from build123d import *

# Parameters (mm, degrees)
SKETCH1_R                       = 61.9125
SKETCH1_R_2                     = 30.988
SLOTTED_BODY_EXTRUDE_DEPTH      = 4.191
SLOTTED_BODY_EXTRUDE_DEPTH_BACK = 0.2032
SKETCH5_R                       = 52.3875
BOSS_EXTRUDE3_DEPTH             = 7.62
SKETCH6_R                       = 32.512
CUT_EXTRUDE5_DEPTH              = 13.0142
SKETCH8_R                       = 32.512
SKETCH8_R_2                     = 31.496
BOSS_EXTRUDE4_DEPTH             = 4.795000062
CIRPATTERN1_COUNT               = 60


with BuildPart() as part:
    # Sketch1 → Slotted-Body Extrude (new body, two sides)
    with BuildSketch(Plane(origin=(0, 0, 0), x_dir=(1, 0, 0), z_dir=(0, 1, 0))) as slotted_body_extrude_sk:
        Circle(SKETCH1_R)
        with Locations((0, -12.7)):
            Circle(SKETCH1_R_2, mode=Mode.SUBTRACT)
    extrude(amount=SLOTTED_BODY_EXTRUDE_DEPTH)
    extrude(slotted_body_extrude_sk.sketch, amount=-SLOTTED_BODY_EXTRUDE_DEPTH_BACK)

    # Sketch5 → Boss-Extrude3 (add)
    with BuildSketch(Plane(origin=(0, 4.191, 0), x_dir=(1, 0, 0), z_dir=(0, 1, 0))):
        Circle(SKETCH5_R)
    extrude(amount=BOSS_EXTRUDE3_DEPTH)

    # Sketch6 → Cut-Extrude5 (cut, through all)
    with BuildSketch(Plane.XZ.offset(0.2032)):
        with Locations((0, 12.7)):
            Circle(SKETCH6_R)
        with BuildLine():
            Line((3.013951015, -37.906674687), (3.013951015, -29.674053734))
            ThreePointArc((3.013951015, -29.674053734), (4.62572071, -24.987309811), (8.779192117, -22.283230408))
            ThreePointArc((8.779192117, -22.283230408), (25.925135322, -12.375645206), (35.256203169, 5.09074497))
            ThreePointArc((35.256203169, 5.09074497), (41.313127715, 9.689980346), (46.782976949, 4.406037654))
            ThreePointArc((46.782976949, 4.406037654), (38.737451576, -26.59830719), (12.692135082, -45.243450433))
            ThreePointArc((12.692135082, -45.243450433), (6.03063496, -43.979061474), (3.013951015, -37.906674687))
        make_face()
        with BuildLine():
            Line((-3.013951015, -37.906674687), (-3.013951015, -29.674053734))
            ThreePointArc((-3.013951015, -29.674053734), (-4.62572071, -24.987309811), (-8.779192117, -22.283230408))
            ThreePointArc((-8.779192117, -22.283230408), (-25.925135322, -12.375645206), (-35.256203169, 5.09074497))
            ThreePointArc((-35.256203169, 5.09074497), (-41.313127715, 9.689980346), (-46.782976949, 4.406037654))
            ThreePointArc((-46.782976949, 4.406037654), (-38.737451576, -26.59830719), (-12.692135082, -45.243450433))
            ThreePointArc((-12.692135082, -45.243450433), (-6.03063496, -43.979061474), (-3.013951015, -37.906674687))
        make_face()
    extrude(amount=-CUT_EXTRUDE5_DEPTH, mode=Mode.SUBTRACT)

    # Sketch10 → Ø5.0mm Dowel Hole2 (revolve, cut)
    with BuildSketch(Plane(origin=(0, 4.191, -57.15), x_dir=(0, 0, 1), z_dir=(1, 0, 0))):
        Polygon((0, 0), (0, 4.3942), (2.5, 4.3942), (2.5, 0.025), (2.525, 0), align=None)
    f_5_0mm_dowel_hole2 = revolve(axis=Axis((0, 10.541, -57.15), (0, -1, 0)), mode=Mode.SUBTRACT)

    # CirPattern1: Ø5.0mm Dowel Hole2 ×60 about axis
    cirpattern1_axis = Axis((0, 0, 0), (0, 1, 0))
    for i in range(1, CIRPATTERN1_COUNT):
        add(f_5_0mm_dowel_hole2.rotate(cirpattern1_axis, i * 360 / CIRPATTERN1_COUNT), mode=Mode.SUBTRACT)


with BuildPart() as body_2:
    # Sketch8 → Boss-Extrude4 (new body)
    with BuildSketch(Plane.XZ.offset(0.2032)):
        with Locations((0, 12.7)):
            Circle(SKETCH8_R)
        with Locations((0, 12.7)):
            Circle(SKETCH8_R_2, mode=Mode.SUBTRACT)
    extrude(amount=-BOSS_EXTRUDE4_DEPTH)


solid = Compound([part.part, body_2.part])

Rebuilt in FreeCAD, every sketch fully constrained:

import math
import FreeCAD as App
import Part
import Sketcher

V = App.Vector
Q = App.Units.Quantity

doc = App.newDocument("Part")
body = doc.addObject("PartDesign::Body", "Body")

sketch1 = doc.addObject("Sketcher::SketchObject", "Sketch")
body.addObject(sketch1)
sketch1.AttachmentSupport = (doc.XZ_Plane, [""])
sketch1.MapMode = "FlatFace"
sketch1.addGeometry(Part.Circle(V(0, 0, 0), V(0, 0, 1), 62), False)
sketch1.addGeometry(Part.Circle(V(0, 13, 0), V(0, 0, 1), 31), False)
sketch1.addConstraint(Sketcher.Constraint("Coincident", 0, 3, -1, 1))
sketch1.addConstraint(Sketcher.Constraint("PointOnObject", 1, 3, -2))
sketch1.addConstraint(Sketcher.Constraint("Diameter", 1, Q("2.44 in")))
sketch1.addConstraint(Sketcher.Constraint("Diameter", 0, Q("4.875 in")))
sketch1.addConstraint(Sketcher.Constraint("DistanceY", -1, 1, 1, 3, Q("0.5 in")))
pad1 = doc.addObject("PartDesign::Pad", "Pad")
body.addObject(pad1)
pad1.Profile = sketch1
pad1.Type = "TwoLengths"
pad1.Length = Q("0.165 in")
pad1.Length2 = Q("0.008 in")
pad1.Reversed = True

sketch2 = doc.addObject("Sketcher::SketchObject", "Sketch001")
body.addObject(sketch2)
sketch2.AttachmentSupport = (doc.XZ_Plane, [""])
sketch2.MapMode = "FlatFace"
sketch2.AttachmentOffset = App.Placement(V(0, 0, -0.165 * 25.4), App.Rotation())
sketch2.addGeometry(Part.Circle(V(0, 0, 0), V(0, 0, 1), 52), False)
sketch2.addConstraint(Sketcher.Constraint("Coincident", 0, 3, -1, 1))
sketch2.addConstraint(Sketcher.Constraint("Diameter", 0, Q("4.125 in")))
pad2 = doc.addObject("PartDesign::Pad", "Pad001")
body.addObject(pad2)
pad2.Profile = sketch2
pad2.Length = Q("0.3 in")
pad2.Reversed = True

sketch3 = doc.addObject("Sketcher::SketchObject", "Sketch002")
body.addObject(sketch3)
sketch3.AttachmentSupport = (doc.XZ_Plane, [""])
sketch3.MapMode = "FlatFace"
sketch3.AttachmentOffset = App.Placement(V(0, 0, 0.008 * 25.4), App.Rotation())
sketch3.addGeometry(Part.Circle(V(0, 13, 0), V(0, 0, 1), 33), False)
sketch3.addGeometry(Part.LineSegment(V(3, -30, 0), V(3, -38, 0)), False)
sketch3.addGeometry(Part.ArcOfCircle(Part.Circle(V(11, -38, 0), V(0, 0, 1), 8), math.radians(-180), math.radians(-74)), False)
sketch3.addGeometry(Part.ArcOfCircle(Part.Circle(V(0, 0, 0), V(0, 0, 1), 47), math.radians(-74), math.radians(5)), False)
sketch3.addGeometry(Part.ArcOfCircle(Part.Circle(V(41, 4, 0), V(0, 0, 1), 6), math.radians(5), math.radians(168)), False)
sketch3.addGeometry(Part.ArcOfCircle(Part.Circle(V(0, 13, 0), V(0, 0, 1), 36), math.radians(-76), math.radians(-12)), False)
sketch3.addGeometry(Part.ArcOfCircle(Part.Circle(V(11, -30, 0), V(0, 0, 1), 8), math.radians(104), math.radians(180)), False)
sketch3.addGeometry(Part.LineSegment(V(-3, -38, 0), V(-3, -30, 0)), False)
sketch3.addGeometry(Part.ArcOfCircle(Part.Circle(V(-11, -30, 0), V(0, 0, 1), 8), math.radians(0), math.radians(76)), False)
sketch3.addGeometry(Part.ArcOfCircle(Part.Circle(V(0, 13, 0), V(0, 0, 1), 36), math.radians(-168), math.radians(-104)), False)
sketch3.addGeometry(Part.ArcOfCircle(Part.Circle(V(-41, 4, 0), V(0, 0, 1), 6), math.radians(12), math.radians(175)), False)
sketch3.addGeometry(Part.ArcOfCircle(Part.Circle(V(0, 0, 0), V(0, 0, 1), 47), math.radians(175), math.radians(254)), False)
sketch3.addGeometry(Part.ArcOfCircle(Part.Circle(V(-11, -38, 0), V(0, 0, 1), 8), math.radians(-106), math.radians(0)), False)
sketch3.addConstraint(Sketcher.Constraint("Tangent", 1, 2, 2, 1))
sketch3.addConstraint(Sketcher.Constraint("Tangent", 2, 2, 3, 1))
sketch3.addConstraint(Sketcher.Constraint("Tangent", 3, 2, 4, 1))
sketch3.addConstraint(Sketcher.Constraint("Tangent", 4, 2, 5, 2))
sketch3.addConstraint(Sketcher.Constraint("Tangent", 5, 1, 6, 1))
sketch3.addConstraint(Sketcher.Constraint("Tangent", 6, 2, 1, 1))
sketch3.addConstraint(Sketcher.Constraint("Tangent", 7, 2, 8, 1))
sketch3.addConstraint(Sketcher.Constraint("Tangent", 8, 2, 9, 2))
sketch3.addConstraint(Sketcher.Constraint("Tangent", 9, 1, 10, 1))
sketch3.addConstraint(Sketcher.Constraint("Tangent", 10, 2, 11, 1))
sketch3.addConstraint(Sketcher.Constraint("Tangent", 11, 2, 12, 1))
sketch3.addConstraint(Sketcher.Constraint("Tangent", 12, 2, 7, 1))
sketch3.addConstraint(Sketcher.Constraint("Vertical", 1))
sketch3.addConstraint(Sketcher.Constraint("Vertical", 7))
sketch3.addConstraint(Sketcher.Constraint("Coincident", 3, 3, -1, 1))
sketch3.addConstraint(Sketcher.Constraint("Coincident", 11, 3, -1, 1))
sketch3.addConstraint(Sketcher.Constraint("Coincident", 5, 3, 0, 3))
sketch3.addConstraint(Sketcher.Constraint("Coincident", 9, 3, 0, 3))
sketch3.addConstraint(Sketcher.Constraint("Equal", 2, 6))
sketch3.addConstraint(Sketcher.Constraint("Equal", 6, 8))
sketch3.addConstraint(Sketcher.Constraint("Equal", 5, 9))
sketch3.addConstraint(Sketcher.Constraint("Equal", 4, 10))
sketch3.addConstraint(Sketcher.Constraint("Equal", 3, 11))
sketch3.addConstraint(Sketcher.Constraint("Equal", 8, 12))
sketch3.addConstraint(Sketcher.Constraint("Symmetric", 6, 3, 8, 3, -2))
sketch3.addConstraint(Sketcher.Constraint("Radius", 2, Q("0.3 in")))
sketch3.addConstraint(Sketcher.Constraint("Diameter", 0, Q("2.56 in")))
sketch3.addConstraint(Sketcher.Constraint("Radius", 3, Q("1.85 in")))
sketch3.addConstraint(Sketcher.Constraint("Radius", 4, Q("0.23 in")))
sketch3.addConstraint(Sketcher.Constraint("Radius", 5, Q("1.42 in")))
sketch3.addConstraint(Sketcher.Constraint("DistanceY", -1, 1, 0, 3, Q("0.5 in")))
sketch3.addConstraint(Sketcher.Constraint("DistanceY", 1, 2, 1, 1, 8.232621))
pocket1 = doc.addObject("PartDesign::Pocket", "Pocket")
body.addObject(pocket1)
pocket1.Profile = sketch3
pocket1.Type = "ThroughAll"

sketch4 = doc.addObject("Sketcher::SketchObject", "Sketch003")
body.addObject(sketch4)
sketch4.AttachmentSupport = (doc.YZ_Plane, [""])
sketch4.MapMode = "FlatFace"
sketch4.addGeometry(Part.LineSegment(V(-0.203, -57.15, 0), V(4.191, -57.15, 0)), False)
sketch4.addGeometry(Part.LineSegment(V(4.191, -57.15, 0), V(4.191, -54.625, 0)), False)
sketch4.addGeometry(Part.LineSegment(V(4.191, -54.625, 0), V(4.166, -54.65, 0)), False)
sketch4.addGeometry(Part.LineSegment(V(4.166, -54.65, 0), V(-0.203, -54.65, 0)), False)
sketch4.addGeometry(Part.LineSegment(V(-0.203, -54.65, 0), V(-0.203, -57.15, 0)), False)
sketch4.addGeometry(Part.LineSegment(V(4.191, -57.15, 0), V(-0.203, -57.15, 0)), True)
sketch4.addConstraint(Sketcher.Constraint("Coincident", 0, 2, 1, 1))
sketch4.addConstraint(Sketcher.Constraint("Coincident", 1, 2, 2, 1))
sketch4.addConstraint(Sketcher.Constraint("Coincident", 2, 2, 3, 1))
sketch4.addConstraint(Sketcher.Constraint("Coincident", 3, 2, 4, 1))
sketch4.addConstraint(Sketcher.Constraint("Coincident", 4, 2, 0, 1))
sketch4.addConstraint(Sketcher.Constraint("Horizontal", 0))
sketch4.addConstraint(Sketcher.Constraint("Vertical", 1))
sketch4.addConstraint(Sketcher.Constraint("Horizontal", 3))
sketch4.addConstraint(Sketcher.Constraint("Vertical", 4))
sketch4.addConstraint(Sketcher.Constraint("Horizontal", 5))
sketch4.addConstraint(Sketcher.Constraint("Coincident", 5, 1, 0, 2))
sketch4.addConstraint(Sketcher.Constraint("Vertical", 3, 2, 5, 2))
sketch4.addConstraint(Sketcher.Constraint("Angle", 2, Q("-135 deg")))
sketch4.addConstraint(Sketcher.Constraint("DistanceX", 0, 1, 0, 2, Q("0.173 in")))
sketch4.addConstraint(Sketcher.Constraint("DistanceY", 0, 2, -1, 1, Q("2.25 in")))
sketch4.addConstraint(Sketcher.Constraint("DistanceX", -1, 1, 0, 2, Q("0.165 in")))
sketch4.addConstraint(Sketcher.Constraint("DistanceX", 3, 2, 3, 1, 4.3692))
sketch4.addConstraint(Sketcher.Constraint("DistanceY", 1, 1, 1, 2, 2.525))
groove = doc.addObject("PartDesign::Groove", "Groove")
body.addObject(groove)
groove.Profile = sketch4
groove.ReferenceAxis = (sketch4, ["Axis0"])
groove.Angle = 360
doc.recompute()

polarpattern = doc.addObject("PartDesign::PolarPattern", "PolarPattern")
body.addObject(polarpattern)
polarpattern.Originals = [groove]
polarpattern.Axis = (doc.Y_Axis, [""])
polarpattern.Angle = 360
polarpattern.Occurrences = 60
body.Tip = polarpattern
body2 = doc.addObject("PartDesign::Body", "Body001")

sketch5 = doc.addObject("Sketcher::SketchObject", "Sketch004")
body2.addObject(sketch5)
sketch5.AttachmentSupport = (doc.getObject("XZ_Plane001"), [""])
sketch5.MapMode = "FlatFace"
sketch5.AttachmentOffset = App.Placement(V(0, 0, 0.008 * 25.4), App.Rotation())
sketch5.addGeometry(Part.Circle(V(0, 13, 0), V(0, 0, 1), 33), False)
sketch5.addGeometry(Part.Circle(V(0, 13, 0), V(0, 0, 1), 31), False)
sketch5.addConstraint(Sketcher.Constraint("Coincident", 1, 3, 0, 3))
sketch5.addConstraint(Sketcher.Constraint("PointOnObject", 0, 3, -2))
sketch5.addConstraint(Sketcher.Constraint("Diameter", 0, Q("2.56 in")))
sketch5.addConstraint(Sketcher.Constraint("Diameter", 1, Q("2.48 in")))
sketch5.addConstraint(Sketcher.Constraint("DistanceY", -1, 1, 0, 3, Q("0.5 in")))
pad3 = doc.addObject("PartDesign::Pad", "Pad002")
body2.addObject(pad3)
pad3.Profile = sketch5
pad3.Length = 4.795
pad3.Reversed = True

doc.recompute()
